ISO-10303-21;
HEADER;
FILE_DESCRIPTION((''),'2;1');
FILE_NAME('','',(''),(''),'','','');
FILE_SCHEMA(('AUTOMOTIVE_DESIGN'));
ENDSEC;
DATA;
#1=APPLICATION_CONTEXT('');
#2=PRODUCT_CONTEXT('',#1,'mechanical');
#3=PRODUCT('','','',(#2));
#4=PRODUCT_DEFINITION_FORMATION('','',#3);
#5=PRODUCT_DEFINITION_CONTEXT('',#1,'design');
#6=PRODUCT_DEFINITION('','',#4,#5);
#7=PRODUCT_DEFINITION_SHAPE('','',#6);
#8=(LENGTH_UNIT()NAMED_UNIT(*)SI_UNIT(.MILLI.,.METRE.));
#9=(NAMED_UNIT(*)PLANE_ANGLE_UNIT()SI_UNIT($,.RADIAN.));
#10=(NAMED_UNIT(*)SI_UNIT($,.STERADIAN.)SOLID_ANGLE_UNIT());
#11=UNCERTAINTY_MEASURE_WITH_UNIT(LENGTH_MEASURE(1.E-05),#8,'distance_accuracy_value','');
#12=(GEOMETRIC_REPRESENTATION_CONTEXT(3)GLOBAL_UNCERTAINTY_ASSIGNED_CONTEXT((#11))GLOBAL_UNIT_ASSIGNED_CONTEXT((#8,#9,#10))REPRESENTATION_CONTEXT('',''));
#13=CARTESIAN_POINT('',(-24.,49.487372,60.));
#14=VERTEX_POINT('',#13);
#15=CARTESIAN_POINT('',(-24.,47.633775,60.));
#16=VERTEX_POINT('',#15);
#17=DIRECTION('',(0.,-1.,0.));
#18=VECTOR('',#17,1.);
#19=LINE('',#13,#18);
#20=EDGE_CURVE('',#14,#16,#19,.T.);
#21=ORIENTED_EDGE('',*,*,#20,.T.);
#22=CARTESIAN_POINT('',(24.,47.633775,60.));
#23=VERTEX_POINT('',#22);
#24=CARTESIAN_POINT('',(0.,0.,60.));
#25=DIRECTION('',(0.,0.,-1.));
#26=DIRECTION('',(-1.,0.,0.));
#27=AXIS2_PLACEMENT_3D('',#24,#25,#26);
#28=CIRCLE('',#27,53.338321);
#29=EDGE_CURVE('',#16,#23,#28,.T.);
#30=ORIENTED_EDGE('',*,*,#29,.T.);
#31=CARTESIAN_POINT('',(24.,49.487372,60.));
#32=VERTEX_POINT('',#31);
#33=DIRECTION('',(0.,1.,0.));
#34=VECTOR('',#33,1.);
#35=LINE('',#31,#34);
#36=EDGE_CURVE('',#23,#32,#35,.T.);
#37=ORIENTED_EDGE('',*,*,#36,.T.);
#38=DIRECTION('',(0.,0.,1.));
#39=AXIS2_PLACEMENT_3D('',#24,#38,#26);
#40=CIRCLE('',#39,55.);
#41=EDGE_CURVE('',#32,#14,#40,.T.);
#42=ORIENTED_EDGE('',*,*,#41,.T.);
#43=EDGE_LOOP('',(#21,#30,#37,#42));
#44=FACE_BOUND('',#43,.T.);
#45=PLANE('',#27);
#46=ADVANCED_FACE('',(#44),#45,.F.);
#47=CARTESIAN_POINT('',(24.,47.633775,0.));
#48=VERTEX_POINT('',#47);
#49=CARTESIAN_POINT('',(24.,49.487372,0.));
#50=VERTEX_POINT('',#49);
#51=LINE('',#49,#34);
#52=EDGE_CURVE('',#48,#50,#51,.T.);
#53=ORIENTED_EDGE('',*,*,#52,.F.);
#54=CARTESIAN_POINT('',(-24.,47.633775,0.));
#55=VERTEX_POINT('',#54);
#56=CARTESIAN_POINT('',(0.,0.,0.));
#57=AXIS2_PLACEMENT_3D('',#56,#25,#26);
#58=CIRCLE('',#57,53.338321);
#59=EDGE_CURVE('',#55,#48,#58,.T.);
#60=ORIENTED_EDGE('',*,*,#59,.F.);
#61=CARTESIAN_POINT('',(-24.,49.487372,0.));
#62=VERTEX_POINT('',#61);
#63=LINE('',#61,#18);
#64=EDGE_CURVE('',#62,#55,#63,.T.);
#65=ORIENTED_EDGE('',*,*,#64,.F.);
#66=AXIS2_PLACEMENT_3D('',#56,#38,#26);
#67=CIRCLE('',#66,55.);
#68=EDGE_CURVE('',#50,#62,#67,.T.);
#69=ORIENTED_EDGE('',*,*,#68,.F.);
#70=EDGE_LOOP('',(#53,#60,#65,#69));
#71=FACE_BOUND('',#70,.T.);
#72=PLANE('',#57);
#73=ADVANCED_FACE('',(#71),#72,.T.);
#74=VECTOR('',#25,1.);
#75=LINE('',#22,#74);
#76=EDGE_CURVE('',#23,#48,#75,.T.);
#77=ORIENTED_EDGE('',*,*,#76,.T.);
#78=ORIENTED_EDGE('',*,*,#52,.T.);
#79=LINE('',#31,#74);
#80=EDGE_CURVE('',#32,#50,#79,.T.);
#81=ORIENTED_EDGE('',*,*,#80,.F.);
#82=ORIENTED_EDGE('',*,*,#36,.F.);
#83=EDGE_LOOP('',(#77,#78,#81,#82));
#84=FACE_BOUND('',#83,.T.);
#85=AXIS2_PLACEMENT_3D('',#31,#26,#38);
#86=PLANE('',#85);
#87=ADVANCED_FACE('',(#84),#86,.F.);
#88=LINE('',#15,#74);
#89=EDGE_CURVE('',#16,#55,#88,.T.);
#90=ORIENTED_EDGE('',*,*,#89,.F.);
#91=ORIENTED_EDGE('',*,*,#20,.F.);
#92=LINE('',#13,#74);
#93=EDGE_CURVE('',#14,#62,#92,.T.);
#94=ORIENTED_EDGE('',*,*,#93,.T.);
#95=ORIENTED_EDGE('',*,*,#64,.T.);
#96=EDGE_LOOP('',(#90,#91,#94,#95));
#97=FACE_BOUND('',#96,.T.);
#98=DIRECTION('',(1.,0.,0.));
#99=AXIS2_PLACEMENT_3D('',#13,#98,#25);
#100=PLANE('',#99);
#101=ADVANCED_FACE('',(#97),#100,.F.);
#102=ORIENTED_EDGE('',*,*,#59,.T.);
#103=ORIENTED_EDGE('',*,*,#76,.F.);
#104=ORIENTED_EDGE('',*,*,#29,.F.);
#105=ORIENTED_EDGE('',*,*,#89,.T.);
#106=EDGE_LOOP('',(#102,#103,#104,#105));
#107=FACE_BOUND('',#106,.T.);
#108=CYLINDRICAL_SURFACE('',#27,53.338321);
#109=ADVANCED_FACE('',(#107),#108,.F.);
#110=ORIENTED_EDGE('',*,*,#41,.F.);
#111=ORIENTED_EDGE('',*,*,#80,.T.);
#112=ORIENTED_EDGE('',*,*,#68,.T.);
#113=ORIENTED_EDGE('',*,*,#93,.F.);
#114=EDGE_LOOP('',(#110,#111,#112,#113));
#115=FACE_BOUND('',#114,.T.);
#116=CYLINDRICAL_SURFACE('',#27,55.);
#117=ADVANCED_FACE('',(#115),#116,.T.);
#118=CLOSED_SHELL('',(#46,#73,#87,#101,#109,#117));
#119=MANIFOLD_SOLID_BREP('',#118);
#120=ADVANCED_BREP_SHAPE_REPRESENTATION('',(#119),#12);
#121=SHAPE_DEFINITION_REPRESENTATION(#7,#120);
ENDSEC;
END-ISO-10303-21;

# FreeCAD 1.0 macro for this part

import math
import FreeCAD as App
import Part
import Sketcher

V = App.Vector

doc = App.newDocument("Part")
params = doc.addObject("Spreadsheet::Sheet", "Params")
for row, (alias, value) in enumerate([
    ("sketch1_radius", "55 mm"),
    ("pad1_length", "60 mm"),
], start=1):
    params.set(f"A{row}", alias)
    params.set(f"B{row}", "=" + value)
    params.setAlias(f"B{row}", alias)

body = doc.addObject("PartDesign::Body", "Body")

# Sketch on XY plane
sketch1 = body.newObject("Sketcher::SketchObject", "Sketch")
sketch1.AttachmentSupport = (doc.getObject("XY_Plane"), [""])
sketch1.MapMode = "FlatFace"
sketch1.addGeometry(Part.LineSegment(V(-24, 49.5, 0), V(-24, 47.6, 0)), False)
sketch1.addGeometry(Part.ArcOfCircle(Part.Circle(V(0, 0, 0), V(0, 0, 1), 53.3), math.radians(63), math.radians(117)), False)
sketch1.addGeometry(Part.LineSegment(V(24, 47.6, 0), V(24, 49.5, 0)), False)
sketch1.addGeometry(Part.ArcOfCircle(Part.Circle(V(0, 0, 0), V(0, 0, 1), 55), math.radians(64), math.radians(116)), False)
sketch1.addConstraint(Sketcher.Constraint("Coincident", 0, 2, 1, 2))
sketch1.addConstraint(Sketcher.Constraint("Coincident", 1, 1, 2, 1))
sketch1.addConstraint(Sketcher.Constraint("Coincident", 2, 2, 3, 1))
sketch1.addConstraint(Sketcher.Constraint("Coincident", 3, 2, 0, 1))
sketch1.addConstraint(Sketcher.Constraint("Vertical", 0))
sketch1.addConstraint(Sketcher.Constraint("Vertical", 2))
sketch1.addConstraint(Sketcher.Constraint("Coincident", 1, 3, -1, 1))
sketch1.addConstraint(Sketcher.Constraint("Coincident", 3, 3, -1, 1))
sketch1.addConstraint(Sketcher.Constraint("Horizontal", 0, 2, 1, 1))
sketch1.addConstraint(Sketcher.Constraint("Radius", 3, 55.0))
sketch1.addConstraint(Sketcher.Constraint("DistanceX", 0, 2, -1, 1, 24.0))
sketch1.addConstraint(Sketcher.Constraint("Radius", 1, 53.338321))
sketch1.setExpression("Constraints[9]", "Params.sketch1_radius")
pad1 = body.newObject("PartDesign::Pad", "Pad")
pad1.Profile = sketch1
pad1.setExpression("Length", "Params.pad1_length")

doc.recompute()
